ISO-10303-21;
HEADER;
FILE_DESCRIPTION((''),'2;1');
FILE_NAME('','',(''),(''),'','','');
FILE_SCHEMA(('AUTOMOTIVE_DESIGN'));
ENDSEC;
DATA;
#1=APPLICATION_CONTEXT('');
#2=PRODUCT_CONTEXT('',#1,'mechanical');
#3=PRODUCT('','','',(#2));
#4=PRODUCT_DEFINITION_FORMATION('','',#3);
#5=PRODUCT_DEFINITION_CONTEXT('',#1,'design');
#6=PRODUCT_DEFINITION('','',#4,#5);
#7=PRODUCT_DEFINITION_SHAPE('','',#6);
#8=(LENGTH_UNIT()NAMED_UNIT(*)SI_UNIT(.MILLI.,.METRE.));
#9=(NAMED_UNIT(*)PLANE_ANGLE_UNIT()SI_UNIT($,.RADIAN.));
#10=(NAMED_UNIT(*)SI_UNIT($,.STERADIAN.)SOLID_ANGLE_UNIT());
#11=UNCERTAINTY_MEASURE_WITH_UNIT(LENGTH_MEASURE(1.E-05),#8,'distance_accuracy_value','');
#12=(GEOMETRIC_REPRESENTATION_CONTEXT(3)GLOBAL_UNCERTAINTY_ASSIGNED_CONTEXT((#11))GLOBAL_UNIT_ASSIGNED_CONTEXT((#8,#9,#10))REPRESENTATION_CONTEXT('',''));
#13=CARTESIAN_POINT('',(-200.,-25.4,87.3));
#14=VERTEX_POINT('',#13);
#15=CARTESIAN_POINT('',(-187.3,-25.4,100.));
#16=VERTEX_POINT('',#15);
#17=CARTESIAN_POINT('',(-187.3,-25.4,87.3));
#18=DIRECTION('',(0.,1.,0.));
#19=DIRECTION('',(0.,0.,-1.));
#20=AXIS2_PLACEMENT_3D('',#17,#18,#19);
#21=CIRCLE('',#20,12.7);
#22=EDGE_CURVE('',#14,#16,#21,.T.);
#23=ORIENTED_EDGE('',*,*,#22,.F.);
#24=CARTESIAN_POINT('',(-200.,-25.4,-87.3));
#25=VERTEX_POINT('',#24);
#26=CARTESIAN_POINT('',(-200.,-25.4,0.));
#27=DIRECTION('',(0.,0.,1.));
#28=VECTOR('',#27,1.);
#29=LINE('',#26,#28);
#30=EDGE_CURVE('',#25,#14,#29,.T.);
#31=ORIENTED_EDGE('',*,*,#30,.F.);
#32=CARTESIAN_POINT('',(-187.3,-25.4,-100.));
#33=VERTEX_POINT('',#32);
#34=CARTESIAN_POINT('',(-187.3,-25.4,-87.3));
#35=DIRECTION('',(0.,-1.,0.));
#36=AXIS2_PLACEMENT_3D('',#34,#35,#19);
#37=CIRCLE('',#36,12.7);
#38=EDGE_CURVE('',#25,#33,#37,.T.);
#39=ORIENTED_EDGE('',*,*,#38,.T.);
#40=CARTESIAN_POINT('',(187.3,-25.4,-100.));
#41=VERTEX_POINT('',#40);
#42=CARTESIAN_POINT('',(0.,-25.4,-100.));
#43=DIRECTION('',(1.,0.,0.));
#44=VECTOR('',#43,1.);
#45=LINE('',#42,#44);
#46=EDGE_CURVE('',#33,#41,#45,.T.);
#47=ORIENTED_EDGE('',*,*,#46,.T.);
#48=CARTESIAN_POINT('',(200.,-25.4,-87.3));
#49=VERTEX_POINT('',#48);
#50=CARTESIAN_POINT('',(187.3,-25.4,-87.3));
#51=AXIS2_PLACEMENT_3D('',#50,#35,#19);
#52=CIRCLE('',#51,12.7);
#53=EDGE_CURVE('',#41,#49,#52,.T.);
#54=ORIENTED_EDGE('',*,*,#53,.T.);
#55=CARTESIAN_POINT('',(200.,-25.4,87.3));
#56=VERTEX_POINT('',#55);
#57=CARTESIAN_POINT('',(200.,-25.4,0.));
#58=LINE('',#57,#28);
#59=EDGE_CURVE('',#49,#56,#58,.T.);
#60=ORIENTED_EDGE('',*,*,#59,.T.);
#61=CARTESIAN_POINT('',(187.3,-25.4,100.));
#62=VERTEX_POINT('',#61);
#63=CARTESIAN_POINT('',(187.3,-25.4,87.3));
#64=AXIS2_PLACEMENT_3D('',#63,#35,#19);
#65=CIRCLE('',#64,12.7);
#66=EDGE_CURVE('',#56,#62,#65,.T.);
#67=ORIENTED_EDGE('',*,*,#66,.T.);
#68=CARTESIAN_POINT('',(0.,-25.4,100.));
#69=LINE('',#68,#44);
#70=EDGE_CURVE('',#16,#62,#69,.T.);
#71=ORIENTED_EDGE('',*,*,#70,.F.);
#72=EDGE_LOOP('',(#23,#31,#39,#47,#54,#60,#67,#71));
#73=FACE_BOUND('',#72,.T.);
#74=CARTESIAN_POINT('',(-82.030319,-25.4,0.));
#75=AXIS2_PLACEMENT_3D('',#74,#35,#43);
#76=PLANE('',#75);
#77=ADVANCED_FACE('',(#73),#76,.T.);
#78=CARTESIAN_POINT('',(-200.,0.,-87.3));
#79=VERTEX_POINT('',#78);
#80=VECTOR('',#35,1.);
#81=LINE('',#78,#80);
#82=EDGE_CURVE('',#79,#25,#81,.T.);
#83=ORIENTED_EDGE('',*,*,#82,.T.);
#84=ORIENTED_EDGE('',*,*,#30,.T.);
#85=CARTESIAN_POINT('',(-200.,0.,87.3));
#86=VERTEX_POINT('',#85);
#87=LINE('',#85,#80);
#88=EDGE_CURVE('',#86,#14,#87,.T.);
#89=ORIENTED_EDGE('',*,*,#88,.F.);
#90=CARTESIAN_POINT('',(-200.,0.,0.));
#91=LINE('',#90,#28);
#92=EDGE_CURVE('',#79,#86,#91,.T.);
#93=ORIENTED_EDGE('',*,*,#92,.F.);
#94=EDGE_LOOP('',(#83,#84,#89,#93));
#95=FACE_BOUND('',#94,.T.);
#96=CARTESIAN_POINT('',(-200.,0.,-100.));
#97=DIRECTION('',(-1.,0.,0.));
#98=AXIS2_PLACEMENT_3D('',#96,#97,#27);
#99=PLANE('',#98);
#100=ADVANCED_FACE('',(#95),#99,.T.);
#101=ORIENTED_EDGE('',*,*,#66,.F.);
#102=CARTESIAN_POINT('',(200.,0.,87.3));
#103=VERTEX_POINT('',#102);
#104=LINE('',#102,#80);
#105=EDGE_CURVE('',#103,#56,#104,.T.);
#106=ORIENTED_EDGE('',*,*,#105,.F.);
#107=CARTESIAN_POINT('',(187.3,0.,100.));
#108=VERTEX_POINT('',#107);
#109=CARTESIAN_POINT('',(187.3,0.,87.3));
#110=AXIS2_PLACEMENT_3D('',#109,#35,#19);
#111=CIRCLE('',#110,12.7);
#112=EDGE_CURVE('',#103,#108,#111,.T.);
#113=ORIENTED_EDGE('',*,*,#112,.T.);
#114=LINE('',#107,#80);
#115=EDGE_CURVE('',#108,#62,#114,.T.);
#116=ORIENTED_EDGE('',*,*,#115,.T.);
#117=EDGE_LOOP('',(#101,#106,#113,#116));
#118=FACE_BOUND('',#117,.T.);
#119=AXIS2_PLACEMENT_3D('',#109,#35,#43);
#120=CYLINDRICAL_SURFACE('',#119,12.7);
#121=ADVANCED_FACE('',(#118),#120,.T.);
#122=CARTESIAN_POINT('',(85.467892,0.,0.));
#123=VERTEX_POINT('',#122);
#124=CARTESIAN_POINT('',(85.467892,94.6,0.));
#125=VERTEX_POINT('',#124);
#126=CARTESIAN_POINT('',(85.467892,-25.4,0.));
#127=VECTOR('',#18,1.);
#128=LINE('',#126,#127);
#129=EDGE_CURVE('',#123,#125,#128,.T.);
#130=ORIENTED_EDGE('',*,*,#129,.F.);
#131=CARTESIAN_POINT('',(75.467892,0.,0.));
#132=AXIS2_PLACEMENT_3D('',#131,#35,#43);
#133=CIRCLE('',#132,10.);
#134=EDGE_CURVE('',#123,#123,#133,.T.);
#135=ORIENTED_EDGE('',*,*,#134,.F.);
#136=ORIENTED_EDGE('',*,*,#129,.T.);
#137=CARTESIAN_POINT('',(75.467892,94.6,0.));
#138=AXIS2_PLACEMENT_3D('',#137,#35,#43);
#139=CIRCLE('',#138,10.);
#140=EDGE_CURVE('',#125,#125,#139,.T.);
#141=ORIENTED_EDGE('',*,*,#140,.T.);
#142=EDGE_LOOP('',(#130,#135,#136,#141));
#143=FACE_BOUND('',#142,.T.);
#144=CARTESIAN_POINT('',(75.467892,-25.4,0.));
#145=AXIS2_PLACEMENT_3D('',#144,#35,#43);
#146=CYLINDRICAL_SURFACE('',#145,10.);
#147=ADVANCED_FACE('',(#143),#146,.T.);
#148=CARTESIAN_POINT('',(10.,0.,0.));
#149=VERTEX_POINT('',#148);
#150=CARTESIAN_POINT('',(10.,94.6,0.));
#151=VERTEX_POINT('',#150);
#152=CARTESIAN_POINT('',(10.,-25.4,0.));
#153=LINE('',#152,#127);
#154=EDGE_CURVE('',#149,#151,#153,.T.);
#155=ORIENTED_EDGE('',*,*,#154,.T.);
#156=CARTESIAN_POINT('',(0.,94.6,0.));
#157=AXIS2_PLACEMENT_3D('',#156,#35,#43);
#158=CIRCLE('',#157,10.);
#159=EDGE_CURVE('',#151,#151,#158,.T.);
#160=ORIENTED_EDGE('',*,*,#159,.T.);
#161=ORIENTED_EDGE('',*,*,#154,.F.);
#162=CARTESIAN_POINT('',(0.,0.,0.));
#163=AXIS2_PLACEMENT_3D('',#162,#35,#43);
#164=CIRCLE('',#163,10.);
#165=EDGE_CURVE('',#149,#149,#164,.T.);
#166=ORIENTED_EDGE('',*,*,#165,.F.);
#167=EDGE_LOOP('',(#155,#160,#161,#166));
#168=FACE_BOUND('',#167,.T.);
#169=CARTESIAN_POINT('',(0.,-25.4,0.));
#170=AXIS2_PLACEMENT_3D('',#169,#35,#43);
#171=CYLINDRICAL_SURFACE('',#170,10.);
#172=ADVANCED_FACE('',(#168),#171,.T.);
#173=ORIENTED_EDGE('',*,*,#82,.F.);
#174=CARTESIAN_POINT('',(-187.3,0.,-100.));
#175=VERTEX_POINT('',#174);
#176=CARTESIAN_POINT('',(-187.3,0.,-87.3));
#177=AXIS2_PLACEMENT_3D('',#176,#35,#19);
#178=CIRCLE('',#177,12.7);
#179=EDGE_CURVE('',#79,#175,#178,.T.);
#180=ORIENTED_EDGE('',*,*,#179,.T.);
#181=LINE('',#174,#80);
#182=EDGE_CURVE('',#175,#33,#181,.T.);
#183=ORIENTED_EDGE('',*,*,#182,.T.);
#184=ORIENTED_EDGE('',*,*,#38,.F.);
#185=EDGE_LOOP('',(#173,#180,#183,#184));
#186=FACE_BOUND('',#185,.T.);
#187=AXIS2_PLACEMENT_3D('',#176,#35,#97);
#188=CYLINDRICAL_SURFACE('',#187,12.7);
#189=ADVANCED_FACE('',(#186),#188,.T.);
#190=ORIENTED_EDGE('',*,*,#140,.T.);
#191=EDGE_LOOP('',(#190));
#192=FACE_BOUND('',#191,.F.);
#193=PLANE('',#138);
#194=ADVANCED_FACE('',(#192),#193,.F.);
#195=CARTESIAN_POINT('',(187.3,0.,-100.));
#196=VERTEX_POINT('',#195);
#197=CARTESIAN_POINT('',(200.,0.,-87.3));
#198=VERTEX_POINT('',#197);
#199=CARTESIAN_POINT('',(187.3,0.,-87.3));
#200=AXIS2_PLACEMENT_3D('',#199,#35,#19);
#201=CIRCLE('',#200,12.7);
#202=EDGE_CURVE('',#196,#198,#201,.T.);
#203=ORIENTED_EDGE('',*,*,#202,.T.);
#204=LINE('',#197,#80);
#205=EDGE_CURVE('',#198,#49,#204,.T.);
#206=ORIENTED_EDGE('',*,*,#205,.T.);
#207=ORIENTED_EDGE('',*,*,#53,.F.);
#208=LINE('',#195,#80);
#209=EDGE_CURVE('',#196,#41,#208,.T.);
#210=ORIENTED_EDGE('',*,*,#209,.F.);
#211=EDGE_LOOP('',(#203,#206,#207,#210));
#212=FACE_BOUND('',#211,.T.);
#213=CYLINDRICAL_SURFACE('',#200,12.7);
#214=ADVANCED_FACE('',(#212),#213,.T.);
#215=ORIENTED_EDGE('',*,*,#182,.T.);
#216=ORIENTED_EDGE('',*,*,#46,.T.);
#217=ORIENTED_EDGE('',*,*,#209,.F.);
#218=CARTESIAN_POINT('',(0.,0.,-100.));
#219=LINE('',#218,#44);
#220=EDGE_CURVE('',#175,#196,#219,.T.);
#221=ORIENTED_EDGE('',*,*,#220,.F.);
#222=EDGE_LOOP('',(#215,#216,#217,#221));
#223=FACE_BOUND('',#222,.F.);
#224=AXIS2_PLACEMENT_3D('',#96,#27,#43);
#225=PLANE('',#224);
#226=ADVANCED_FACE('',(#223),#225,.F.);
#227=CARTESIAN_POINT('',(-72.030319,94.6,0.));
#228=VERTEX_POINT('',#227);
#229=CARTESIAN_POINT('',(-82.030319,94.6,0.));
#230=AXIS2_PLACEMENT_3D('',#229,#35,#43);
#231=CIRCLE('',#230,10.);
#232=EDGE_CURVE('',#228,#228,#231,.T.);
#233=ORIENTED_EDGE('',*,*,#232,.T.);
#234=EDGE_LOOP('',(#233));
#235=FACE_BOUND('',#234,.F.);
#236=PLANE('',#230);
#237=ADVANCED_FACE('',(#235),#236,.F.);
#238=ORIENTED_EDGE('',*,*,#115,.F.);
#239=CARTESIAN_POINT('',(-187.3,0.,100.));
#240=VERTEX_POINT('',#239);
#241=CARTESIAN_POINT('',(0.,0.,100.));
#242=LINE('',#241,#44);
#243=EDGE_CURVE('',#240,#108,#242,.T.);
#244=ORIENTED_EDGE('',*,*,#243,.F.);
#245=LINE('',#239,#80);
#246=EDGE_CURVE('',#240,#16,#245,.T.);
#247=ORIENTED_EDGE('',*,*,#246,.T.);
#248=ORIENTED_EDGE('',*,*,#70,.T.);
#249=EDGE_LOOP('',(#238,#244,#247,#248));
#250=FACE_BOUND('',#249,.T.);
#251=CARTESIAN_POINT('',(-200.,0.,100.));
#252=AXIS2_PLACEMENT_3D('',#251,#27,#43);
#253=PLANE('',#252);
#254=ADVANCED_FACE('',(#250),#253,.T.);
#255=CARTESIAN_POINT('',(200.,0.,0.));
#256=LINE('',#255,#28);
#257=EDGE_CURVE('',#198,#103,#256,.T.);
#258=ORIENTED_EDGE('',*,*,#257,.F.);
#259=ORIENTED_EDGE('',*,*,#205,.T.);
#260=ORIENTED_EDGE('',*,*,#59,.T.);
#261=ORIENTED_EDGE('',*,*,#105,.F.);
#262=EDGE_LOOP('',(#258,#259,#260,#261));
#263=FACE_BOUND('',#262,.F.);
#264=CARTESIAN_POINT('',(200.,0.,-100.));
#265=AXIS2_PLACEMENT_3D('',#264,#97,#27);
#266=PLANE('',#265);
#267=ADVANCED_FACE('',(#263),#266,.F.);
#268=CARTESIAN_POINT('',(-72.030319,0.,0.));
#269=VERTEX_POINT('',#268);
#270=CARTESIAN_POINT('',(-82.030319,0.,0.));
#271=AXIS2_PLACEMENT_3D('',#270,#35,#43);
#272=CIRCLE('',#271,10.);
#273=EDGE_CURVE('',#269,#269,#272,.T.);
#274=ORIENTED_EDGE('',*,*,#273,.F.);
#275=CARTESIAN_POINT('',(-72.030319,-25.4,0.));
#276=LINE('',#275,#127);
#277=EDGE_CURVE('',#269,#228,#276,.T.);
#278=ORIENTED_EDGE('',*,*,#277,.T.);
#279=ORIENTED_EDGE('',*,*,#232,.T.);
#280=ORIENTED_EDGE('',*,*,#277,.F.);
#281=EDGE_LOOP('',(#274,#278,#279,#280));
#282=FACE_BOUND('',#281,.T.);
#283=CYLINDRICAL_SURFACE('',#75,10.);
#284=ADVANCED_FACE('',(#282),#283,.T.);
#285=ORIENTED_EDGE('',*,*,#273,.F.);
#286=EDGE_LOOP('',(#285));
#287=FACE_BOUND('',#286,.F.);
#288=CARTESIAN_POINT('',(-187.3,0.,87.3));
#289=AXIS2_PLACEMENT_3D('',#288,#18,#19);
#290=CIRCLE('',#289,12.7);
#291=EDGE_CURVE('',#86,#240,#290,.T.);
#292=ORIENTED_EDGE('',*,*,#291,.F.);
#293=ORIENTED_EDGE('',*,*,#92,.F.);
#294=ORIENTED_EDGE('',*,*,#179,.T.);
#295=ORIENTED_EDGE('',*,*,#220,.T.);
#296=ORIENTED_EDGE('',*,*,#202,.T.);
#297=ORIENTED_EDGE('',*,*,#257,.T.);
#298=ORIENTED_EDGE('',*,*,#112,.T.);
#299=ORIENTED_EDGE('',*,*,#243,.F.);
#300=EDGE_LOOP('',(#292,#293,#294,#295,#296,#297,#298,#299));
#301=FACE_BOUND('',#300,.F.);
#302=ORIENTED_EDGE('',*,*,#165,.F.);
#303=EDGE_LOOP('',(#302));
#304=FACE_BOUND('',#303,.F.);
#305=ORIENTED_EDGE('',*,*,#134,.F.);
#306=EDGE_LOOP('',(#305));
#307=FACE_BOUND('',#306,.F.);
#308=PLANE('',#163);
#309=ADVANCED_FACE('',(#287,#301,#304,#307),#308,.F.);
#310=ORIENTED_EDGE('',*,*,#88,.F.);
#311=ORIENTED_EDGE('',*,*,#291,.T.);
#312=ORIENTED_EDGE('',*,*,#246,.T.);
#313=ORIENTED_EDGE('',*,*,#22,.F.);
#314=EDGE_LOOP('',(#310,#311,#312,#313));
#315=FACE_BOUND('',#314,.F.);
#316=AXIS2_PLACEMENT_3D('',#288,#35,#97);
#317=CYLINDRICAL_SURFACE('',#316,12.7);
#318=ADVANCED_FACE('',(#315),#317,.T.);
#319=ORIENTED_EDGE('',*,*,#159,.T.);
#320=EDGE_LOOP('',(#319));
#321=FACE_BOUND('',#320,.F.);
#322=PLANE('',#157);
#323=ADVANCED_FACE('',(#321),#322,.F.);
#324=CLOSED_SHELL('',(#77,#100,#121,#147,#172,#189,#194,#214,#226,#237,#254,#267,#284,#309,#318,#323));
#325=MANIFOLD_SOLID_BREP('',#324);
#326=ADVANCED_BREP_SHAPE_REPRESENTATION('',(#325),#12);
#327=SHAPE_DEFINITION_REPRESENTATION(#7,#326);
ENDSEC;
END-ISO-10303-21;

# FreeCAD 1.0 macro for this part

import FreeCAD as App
import Part
import Sketcher


def edges_at(feature, points):
    """Names of the edges that pass closest to the given points."""
    edges = feature.Shape.Edges
    near = lambda p: min(range(len(edges)), key=lambda i: edges[i].distToShape(Part.Vertex(*p))[0])
    return sorted({f"Edge{near(p) + 1}" for p in points})


def add_polygon(sketch, points):
    """Adds a closed chain of lines whose ends are joined by coincident constraints."""
    first, n = sketch.GeometryCount, len(points)
    for a, b in zip(points, points[1:] + points[:1]):
        sketch.addGeometry(Part.LineSegment(App.Vector(*a, 0), App.Vector(*b, 0)), False)
    for i in range(n):
        sketch.addConstraint(Sketcher.Constraint("Coincident", first + i, 2, first + (i + 1) % n, 1))

doc = App.newDocument("Part")
params = doc.addObject("Spreadsheet::Sheet", "Params")
for row, (alias, value) in enumerate([
    ("sketch1_width", "400 mm"),
    ("sketch1_height", "200 mm"),
    ("pad1_length", "25.4 mm"),
    ("fillet_radius", "12.7 mm"),
    ("fillet2_radius", "12.7 mm"),
    ("sketch2_diameter", "20 mm"),
    ("pad2_length", "120 mm"),
], start=1):
    params.set(f"A{row}", alias)
    params.set(f"B{row}", "=" + value)
    params.setAlias(f"B{row}", alias)

body = doc.addObject("PartDesign::Body", "Body")

sketch1 = body.newObject("Sketcher::SketchObject", "Sketch")
sketch1.AttachmentSupport = (doc.getObject("XZ_Plane"), [""])
sketch1.MapMode = "FlatFace"
add_polygon(sketch1, [(-200, 100), (-200, -100), (200, -100), (200, 100)])
sketch1.addConstraint(Sketcher.Constraint("Vertical", 0))
sketch1.addConstraint(Sketcher.Constraint("Horizontal", 1))
sketch1.addConstraint(Sketcher.Constraint("Vertical", 2))
sketch1.addConstraint(Sketcher.Constraint("Horizontal", 3))
sketch1.addConstraint(Sketcher.Constraint("Symmetric", 0, 2, 2, 2, -1, 1))
sketch1.addConstraint(Sketcher.Constraint("DistanceX", 1, 1, 1, 2, 400.0))
sketch1.addConstraint(Sketcher.Constraint("DistanceY", 0, 2, 0, 1, 200.0))
sketch1.setExpression("Constraints[9]", "Params.sketch1_width")
sketch1.setExpression("Constraints[10]", "Params.sketch1_height")
pad1 = body.newObject("PartDesign::Pad", "Pad")
pad1.Profile = sketch1
pad1.setExpression("Length", "Params.pad1_length")
doc.recompute()

fillet = body.newObject("PartDesign::Fillet", "Fillet")
fillet.Base = (pad1, edges_at(pad1, [(-200, -12.7, -100), (200, -12.7, -100), (200, -12.7, 100)]))
fillet.setExpression("Radius", "Params.fillet_radius")
doc.recompute()

fillet2 = body.newObject("PartDesign::Fillet", "Fillet001")
fillet2.Base = (fillet, edges_at(fillet, [(-200, -12.7, 100)]))
fillet2.setExpression("Radius", "Params.fillet2_radius")

sketch2 = body.newObject("Sketcher::SketchObject", "Sketch001")
sketch2.AttachmentSupport = (doc.getObject("XZ_Plane"), [""])
sketch2.MapMode = "FlatFace"
sketch2.AttachmentOffset = App.Placement(App.Vector(0, 0, 25.4), App.Rotation())
sketch2.addGeometry(Part.Circle(App.Vector(-82, 0, 0), App.Vector(0, 0, 1), 10), False)
sketch2.addGeometry(Part.Circle(App.Vector(0, 0, 0), App.Vector(0, 0, 1), 10), False)
sketch2.addGeometry(Part.Circle(App.Vector(75, 0, 0), App.Vector(0, 0, 1), 10), False)
sketch2.addConstraint(Sketcher.Constraint("Coincident", 1, 3, -1, 1))
sketch2.addConstraint(Sketcher.Constraint("Equal", 0, 1))
sketch2.addConstraint(Sketcher.Constraint("Equal", 1, 2))
sketch2.addConstraint(Sketcher.Constraint("PointOnObject", 0, 3, -1))
sketch2.addConstraint(Sketcher.Constraint("PointOnObject", 2, 3, -1))
sketch2.addConstraint(Sketcher.Constraint("Diameter", 0, 20.0))
sketch2.addConstraint(Sketcher.Constraint("DistanceX", 0, 3, -1, 1, 82.030319))
sketch2.addConstraint(Sketcher.Constraint("DistanceX", 0, 3, 2, 3, 157.498211))
sketch2.setExpression("Constraints[5]", "Params.sketch2_diameter")
pad2 = body.newObject("PartDesign::Pad", "Pad001")
pad2.Profile = sketch2
pad2.setExpression("Length", "Params.pad2_length")
pad2.Reversed = True

doc.recompute()
